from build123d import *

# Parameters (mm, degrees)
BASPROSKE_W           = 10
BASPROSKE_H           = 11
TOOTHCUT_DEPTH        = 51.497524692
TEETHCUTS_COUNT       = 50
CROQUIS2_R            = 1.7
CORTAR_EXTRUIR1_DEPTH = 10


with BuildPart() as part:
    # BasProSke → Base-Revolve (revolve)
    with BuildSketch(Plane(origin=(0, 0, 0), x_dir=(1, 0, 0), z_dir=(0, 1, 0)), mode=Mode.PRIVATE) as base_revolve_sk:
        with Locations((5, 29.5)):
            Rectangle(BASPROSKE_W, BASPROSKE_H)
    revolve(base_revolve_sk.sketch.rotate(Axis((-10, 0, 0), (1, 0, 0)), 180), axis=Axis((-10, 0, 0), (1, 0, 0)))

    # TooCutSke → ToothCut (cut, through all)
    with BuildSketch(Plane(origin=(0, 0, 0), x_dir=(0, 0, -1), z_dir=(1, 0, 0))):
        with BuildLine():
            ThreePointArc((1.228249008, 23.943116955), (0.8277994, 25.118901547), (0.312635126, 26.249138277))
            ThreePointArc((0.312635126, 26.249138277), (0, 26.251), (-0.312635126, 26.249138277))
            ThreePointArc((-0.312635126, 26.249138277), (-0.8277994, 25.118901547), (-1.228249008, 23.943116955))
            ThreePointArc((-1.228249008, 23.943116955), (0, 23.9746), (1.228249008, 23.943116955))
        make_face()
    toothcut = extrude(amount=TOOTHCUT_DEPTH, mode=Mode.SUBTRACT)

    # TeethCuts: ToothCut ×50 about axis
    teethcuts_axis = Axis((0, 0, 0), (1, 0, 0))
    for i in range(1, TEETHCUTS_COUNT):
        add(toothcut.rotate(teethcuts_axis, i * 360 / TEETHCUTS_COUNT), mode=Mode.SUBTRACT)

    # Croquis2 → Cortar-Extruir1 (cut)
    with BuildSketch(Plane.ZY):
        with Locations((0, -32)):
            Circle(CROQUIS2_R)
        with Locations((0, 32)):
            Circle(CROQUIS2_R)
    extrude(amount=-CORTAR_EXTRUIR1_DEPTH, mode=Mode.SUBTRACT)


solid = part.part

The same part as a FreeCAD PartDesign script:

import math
import FreeCAD as App
import Part
import Sketcher
from FreeCAD import Vector

doc = App.newDocument("Part")
body = doc.addObject("PartDesign::Body", "Body")

sketch1 = doc.addObject("Sketcher::SketchObject", "Sketch")
body.addObject(sketch1)
sketch1.AttachmentSupport = (doc.XZ_Plane, [""])
sketch1.MapMode = "FlatFace"
sketch1.addGeometry(Part.LineSegment(Vector(0, -35, 0), Vector(0, -24, 0)), False)
sketch1.addGeometry(Part.LineSegment(Vector(0, -24, 0), Vector(10, -24, 0)), False)
sketch1.addGeometry(Part.LineSegment(Vector(10, -24, 0), Vector(10, -35, 0)), False)
sketch1.addGeometry(Part.LineSegment(Vector(10, -35, 0), Vector(0, -35, 0)), False)
sketch1.addConstraint(Sketcher.Constraint("Coincident", 0, 2, 1, 1))
sketch1.addConstraint(Sketcher.Constraint("Coincident", 1, 2, 2, 1))
sketch1.addConstraint(Sketcher.Constraint("Coincident", 2, 2, 3, 1))
sketch1.addConstraint(Sketcher.Constraint("Coincident", 3, 2, 0, 1))
sketch1.addConstraint(Sketcher.Constraint("Vertical", 0))
sketch1.addConstraint(Sketcher.Constraint("Horizontal", 1))
sketch1.addConstraint(Sketcher.Constraint("Vertical", 2))
sketch1.addConstraint(Sketcher.Constraint("Horizontal", 3))
sketch1.addConstraint(Sketcher.Constraint("PointOnObject", 0, 2, -2))
sketch1.addConstraint(Sketcher.Constraint("DistanceX", 1, 1, 1, 2, 10.0))
sketch1.addConstraint(Sketcher.Constraint("DistanceY", 0, 1, 0, 2, 11.0))
sketch1.addConstraint(Sketcher.Constraint("DistanceY", 0, 2, -1, 1, 24.0))
revolution = doc.addObject("PartDesign::Revolution", "Revolution")
body.addObject(revolution)
revolution.Profile = sketch1
revolution.ReferenceAxis = (sketch1, ["H_Axis"])
revolution.Angle = 360

sketch2 = doc.addObject("Sketcher::SketchObject", "Sketch001")
body.addObject(sketch2)
sketch2.AttachmentSupport = (doc.YZ_Plane, [""])
sketch2.MapMode = "FlatFace"
sketch2.addGeometry(Part.ArcOfCircle(Part.Circle(Vector(20.506043, 10.789926, 0), Vector(0, 0, 1), 12.5), math.radians(-74.040017), math.radians(-62.64853)), False)
sketch2.addGeometry(Part.ArcOfCircle(Part.Circle(Vector(-0.000002, 0, 0), Vector(0, 0, 1), 26.251002), math.radians(-0.682378), math.radians(0.682378)), False)
sketch2.addGeometry(Part.ArcOfCircle(Part.Circle(Vector(20.506043, -10.789926, 0), Vector(0, 0, 1), 12.5), math.radians(62.64853), math.radians(74.040017)), False)
sketch2.addGeometry(Part.ArcOfCircle(Part.Circle(Vector(0, 0, 0), Vector(0, 0, 1), 23.9746), math.radians(-2.936621), math.radians(2.936621)), False)
sketch2.addConstraint(Sketcher.Constraint("Coincident", 0, 2, 1, 1))
sketch2.addConstraint(Sketcher.Constraint("Coincident", 1, 2, 2, 1))
sketch2.addConstraint(Sketcher.Constraint("Coincident", 2, 2, 3, 2))
sketch2.addConstraint(Sketcher.Constraint("Coincident", 3, 1, 0, 1))
sketch2.addConstraint(Sketcher.Constraint("Coincident", 1, 3, -1, 1))
sketch2.addConstraint(Sketcher.Constraint("Coincident", 3, 3, -1, 1))
sketch2.addConstraint(Sketcher.Constraint("Equal", 0, 2))
sketch2.addConstraint(Sketcher.Constraint("Symmetric", 0, 3, 2, 3, -1))
sketch2.addConstraint(Sketcher.Constraint("Radius", 0, 12.5))
sketch2.addConstraint(Sketcher.Constraint("Radius", 1, 26.251002))
sketch2.addConstraint(Sketcher.Constraint("Radius", 3, 23.9746))
sketch2.addConstraint(Sketcher.Constraint("DistanceY", 3, 1, 2, 2, 2.456498))
sketch2.addConstraint(Sketcher.Constraint("DistanceY", 2, 3, 0, 3, 21.579851))
pocket1 = doc.addObject("PartDesign::Pocket", "Pocket")
body.addObject(pocket1)
pocket1.Profile = sketch2
pocket1.Type = "ThroughAll"
pocket1.Reversed = True
doc.recompute()

polarpattern = doc.addObject("PartDesign::PolarPattern", "PolarPattern")
body.addObject(polarpattern)
polarpattern.Originals = [pocket1]
polarpattern.Axis = (doc.X_Axis, [""])
polarpattern.Angle = 360
polarpattern.Occurrences = 50
body.Tip = polarpattern

sketch3 = doc.addObject("Sketcher::SketchObject", "Sketch002")
body.addObject(sketch3)
sketch3.AttachmentSupport = (doc.YZ_Plane, [""])
sketch3.MapMode = "FlatFace"
sketch3.addGeometry(Part.Circle(Vector(-32, 0, 0), Vector(0, 0, 1), 1.7), False)
sketch3.addGeometry(Part.Circle(Vector(32, 0, 0), Vector(0, 0, 1), 1.7), False)
sketch3.addConstraint(Sketcher.Constraint("Equal", 0, 1))
sketch3.addConstraint(Sketcher.Constraint("Symmetric", 0, 3, 1, 3, -1, 1))
sketch3.addConstraint(Sketcher.Constraint("PointOnObject", 0, 3, -1))
sketch3.addConstraint(Sketcher.Constraint("Diameter", 0, 3.4))
sketch3.addConstraint(Sketcher.Constraint("DistanceX", 0, 3, -1, 1, 32.0))
pocket2 = doc.addObject("PartDesign::Pocket", "Pocket001")
body.addObject(pocket2)
pocket2.Profile = sketch3
pocket2.Length = 10
pocket2.Reversed = True

doc.recompute()
